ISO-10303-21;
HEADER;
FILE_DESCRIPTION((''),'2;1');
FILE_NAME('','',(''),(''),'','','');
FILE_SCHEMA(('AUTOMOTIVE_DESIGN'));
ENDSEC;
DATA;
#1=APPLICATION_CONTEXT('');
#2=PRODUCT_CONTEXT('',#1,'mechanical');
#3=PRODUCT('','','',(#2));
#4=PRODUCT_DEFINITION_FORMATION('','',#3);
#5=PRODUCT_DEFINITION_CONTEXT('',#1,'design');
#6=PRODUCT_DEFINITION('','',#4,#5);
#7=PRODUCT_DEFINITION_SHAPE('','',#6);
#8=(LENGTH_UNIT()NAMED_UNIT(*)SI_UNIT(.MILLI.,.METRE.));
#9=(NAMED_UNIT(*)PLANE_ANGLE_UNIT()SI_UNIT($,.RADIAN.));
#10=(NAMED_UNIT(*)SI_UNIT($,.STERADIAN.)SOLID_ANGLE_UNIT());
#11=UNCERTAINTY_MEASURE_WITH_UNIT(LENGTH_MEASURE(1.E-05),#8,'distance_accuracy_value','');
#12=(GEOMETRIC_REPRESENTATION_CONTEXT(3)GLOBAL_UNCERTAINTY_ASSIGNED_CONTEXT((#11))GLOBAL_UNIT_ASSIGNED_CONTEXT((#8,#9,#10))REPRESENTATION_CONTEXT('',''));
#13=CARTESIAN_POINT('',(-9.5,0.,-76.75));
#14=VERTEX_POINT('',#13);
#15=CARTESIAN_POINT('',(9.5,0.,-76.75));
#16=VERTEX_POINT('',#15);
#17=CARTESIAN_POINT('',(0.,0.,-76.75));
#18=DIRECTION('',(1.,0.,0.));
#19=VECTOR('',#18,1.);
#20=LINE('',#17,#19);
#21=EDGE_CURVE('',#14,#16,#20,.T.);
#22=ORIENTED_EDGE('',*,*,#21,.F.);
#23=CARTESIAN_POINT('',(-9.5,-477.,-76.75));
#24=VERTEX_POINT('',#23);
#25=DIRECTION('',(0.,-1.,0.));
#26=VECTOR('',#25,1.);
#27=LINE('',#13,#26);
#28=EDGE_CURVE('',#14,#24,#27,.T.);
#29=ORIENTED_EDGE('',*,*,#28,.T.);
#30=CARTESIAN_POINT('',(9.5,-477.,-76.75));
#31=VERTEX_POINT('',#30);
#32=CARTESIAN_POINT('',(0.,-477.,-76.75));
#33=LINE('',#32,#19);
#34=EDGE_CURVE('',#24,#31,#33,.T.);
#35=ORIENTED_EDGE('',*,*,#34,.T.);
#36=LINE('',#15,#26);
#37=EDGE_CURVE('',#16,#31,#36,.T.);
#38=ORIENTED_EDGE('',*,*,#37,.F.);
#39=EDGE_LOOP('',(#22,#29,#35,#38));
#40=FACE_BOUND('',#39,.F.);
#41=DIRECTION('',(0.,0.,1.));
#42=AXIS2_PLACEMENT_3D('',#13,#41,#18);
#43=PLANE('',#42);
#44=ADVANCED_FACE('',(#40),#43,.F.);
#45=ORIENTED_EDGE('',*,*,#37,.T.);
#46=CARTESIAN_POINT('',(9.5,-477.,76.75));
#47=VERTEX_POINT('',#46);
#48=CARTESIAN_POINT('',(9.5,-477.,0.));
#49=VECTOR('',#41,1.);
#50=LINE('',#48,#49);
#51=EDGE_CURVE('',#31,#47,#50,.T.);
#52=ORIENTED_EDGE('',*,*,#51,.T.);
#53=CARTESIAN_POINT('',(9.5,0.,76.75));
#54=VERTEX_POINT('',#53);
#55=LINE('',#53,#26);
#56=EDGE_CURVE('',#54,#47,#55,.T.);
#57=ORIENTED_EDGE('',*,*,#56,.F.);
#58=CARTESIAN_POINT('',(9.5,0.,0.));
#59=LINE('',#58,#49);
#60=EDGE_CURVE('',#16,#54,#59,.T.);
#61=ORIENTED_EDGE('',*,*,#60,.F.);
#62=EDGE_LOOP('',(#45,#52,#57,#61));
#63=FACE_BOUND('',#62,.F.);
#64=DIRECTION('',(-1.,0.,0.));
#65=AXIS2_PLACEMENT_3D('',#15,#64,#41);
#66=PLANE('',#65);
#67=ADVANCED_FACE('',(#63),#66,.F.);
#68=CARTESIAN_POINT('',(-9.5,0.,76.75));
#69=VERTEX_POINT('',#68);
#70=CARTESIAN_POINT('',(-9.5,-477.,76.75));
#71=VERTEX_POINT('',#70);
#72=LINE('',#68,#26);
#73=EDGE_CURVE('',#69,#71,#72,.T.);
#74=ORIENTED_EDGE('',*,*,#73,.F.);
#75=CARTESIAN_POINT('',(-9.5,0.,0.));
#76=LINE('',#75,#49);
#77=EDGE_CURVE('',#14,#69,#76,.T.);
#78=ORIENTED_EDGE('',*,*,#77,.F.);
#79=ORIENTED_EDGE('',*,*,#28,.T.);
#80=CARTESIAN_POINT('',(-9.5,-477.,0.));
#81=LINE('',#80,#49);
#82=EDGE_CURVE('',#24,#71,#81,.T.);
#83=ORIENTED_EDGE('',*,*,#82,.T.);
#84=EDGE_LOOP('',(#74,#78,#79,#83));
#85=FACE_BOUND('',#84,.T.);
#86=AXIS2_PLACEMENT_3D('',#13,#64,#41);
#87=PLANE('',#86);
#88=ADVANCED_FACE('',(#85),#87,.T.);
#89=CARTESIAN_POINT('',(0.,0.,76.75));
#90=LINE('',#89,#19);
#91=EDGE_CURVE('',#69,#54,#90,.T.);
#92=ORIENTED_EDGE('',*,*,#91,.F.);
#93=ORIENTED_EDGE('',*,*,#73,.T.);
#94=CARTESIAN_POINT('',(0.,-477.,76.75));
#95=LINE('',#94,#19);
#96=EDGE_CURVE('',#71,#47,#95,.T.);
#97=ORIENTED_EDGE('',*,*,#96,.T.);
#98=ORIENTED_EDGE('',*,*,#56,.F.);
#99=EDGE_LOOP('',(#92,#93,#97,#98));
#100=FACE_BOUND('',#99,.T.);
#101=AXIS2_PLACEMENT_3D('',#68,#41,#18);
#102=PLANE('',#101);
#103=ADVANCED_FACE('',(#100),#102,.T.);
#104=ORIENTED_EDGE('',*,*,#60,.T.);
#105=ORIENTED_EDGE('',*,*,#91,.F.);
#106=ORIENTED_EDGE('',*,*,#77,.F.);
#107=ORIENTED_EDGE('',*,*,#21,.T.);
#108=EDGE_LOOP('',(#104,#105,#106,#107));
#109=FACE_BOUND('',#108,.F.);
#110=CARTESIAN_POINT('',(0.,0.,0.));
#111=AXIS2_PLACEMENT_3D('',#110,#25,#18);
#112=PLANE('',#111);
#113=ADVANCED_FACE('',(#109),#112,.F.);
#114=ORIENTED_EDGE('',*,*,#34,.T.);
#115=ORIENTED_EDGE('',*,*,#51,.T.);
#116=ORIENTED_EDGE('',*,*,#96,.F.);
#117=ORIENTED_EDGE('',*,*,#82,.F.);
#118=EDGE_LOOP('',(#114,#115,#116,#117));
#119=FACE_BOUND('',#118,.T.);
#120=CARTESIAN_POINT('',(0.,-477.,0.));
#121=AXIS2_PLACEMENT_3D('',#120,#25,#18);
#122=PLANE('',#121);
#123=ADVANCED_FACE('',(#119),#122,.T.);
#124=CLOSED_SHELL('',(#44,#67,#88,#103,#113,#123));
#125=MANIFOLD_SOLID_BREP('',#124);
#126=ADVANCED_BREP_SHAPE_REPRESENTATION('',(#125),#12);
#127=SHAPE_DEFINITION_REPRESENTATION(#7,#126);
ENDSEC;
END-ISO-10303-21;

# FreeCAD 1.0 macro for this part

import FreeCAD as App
import Part
import Sketcher

V = App.Vector
Q = App.Units.Quantity

doc = App.newDocument("Part")
params = doc.addObject("Spreadsheet::Sheet", "Params")
for row, (alias, value) in enumerate([
    ("sketch1_width", "19 mm"),
    ("sketch1_height", "153.5 mm"),
    ("pad1_length", "477 mm"),
], start=1):
    params.set(f"A{row}", alias)
    params.set(f"B{row}", "=" + value)
    params.setAlias(f"B{row}", alias)

body = doc.addObject("PartDesign::Body", "Body")

sketch1 = body.newObject("Sketcher::SketchObject", "Sketch")
sketch1.AttachmentSupport = (doc.getObject("XZ_Plane"), [""])
sketch1.MapMode = "FlatFace"
sketch1.addGeometry(Part.LineSegment(V(-9.5, 76.75, 0), V(-9.5, -76.75, 0)), False)
sketch1.addGeometry(Part.LineSegment(V(-9.5, -76.75, 0), V(9.5, -76.75, 0)), False)
sketch1.addGeometry(Part.LineSegment(V(9.5, -76.75, 0), V(9.5, 76.75, 0)), False)
sketch1.addGeometry(Part.LineSegment(V(9.5, 76.75, 0), V(-9.5, 76.75, 0)), False)
sketch1.addConstraint(Sketcher.Constraint("Coincident", 0, 2, 1, 1))
sketch1.addConstraint(Sketcher.Constraint("Coincident", 1, 2, 2, 1))
sketch1.addConstraint(Sketcher.Constraint("Coincident", 2, 2, 3, 1))
sketch1.addConstraint(Sketcher.Constraint("Coincident", 3, 2, 0, 1))
sketch1.addConstraint(Sketcher.Constraint("Vertical", 0))
sketch1.addConstraint(Sketcher.Constraint("Horizontal", 1))
sketch1.addConstraint(Sketcher.Constraint("Vertical", 2))
sketch1.addConstraint(Sketcher.Constraint("Horizontal", 3))
sketch1.addConstraint(Sketcher.Constraint("Symmetric", 0, 2, 2, 2, -1, 1))
sketch1.addConstraint(Sketcher.Constraint("DistanceX", 1, 1, 1, 2, Q("19 mm")))
sketch1.addConstraint(Sketcher.Constraint("DistanceY", 0, 2, 0, 1, Q("153.5 mm")))
sketch1.setExpression("Constraints[9]", "Params.sketch1_width")
sketch1.setExpression("Constraints[10]", "Params.sketch1_height")
pad1 = body.newObject("PartDesign::Pad", "Pad")
pad1.Profile = sketch1
pad1.setExpression("Length", "Params.pad1_length")

doc.recompute()
